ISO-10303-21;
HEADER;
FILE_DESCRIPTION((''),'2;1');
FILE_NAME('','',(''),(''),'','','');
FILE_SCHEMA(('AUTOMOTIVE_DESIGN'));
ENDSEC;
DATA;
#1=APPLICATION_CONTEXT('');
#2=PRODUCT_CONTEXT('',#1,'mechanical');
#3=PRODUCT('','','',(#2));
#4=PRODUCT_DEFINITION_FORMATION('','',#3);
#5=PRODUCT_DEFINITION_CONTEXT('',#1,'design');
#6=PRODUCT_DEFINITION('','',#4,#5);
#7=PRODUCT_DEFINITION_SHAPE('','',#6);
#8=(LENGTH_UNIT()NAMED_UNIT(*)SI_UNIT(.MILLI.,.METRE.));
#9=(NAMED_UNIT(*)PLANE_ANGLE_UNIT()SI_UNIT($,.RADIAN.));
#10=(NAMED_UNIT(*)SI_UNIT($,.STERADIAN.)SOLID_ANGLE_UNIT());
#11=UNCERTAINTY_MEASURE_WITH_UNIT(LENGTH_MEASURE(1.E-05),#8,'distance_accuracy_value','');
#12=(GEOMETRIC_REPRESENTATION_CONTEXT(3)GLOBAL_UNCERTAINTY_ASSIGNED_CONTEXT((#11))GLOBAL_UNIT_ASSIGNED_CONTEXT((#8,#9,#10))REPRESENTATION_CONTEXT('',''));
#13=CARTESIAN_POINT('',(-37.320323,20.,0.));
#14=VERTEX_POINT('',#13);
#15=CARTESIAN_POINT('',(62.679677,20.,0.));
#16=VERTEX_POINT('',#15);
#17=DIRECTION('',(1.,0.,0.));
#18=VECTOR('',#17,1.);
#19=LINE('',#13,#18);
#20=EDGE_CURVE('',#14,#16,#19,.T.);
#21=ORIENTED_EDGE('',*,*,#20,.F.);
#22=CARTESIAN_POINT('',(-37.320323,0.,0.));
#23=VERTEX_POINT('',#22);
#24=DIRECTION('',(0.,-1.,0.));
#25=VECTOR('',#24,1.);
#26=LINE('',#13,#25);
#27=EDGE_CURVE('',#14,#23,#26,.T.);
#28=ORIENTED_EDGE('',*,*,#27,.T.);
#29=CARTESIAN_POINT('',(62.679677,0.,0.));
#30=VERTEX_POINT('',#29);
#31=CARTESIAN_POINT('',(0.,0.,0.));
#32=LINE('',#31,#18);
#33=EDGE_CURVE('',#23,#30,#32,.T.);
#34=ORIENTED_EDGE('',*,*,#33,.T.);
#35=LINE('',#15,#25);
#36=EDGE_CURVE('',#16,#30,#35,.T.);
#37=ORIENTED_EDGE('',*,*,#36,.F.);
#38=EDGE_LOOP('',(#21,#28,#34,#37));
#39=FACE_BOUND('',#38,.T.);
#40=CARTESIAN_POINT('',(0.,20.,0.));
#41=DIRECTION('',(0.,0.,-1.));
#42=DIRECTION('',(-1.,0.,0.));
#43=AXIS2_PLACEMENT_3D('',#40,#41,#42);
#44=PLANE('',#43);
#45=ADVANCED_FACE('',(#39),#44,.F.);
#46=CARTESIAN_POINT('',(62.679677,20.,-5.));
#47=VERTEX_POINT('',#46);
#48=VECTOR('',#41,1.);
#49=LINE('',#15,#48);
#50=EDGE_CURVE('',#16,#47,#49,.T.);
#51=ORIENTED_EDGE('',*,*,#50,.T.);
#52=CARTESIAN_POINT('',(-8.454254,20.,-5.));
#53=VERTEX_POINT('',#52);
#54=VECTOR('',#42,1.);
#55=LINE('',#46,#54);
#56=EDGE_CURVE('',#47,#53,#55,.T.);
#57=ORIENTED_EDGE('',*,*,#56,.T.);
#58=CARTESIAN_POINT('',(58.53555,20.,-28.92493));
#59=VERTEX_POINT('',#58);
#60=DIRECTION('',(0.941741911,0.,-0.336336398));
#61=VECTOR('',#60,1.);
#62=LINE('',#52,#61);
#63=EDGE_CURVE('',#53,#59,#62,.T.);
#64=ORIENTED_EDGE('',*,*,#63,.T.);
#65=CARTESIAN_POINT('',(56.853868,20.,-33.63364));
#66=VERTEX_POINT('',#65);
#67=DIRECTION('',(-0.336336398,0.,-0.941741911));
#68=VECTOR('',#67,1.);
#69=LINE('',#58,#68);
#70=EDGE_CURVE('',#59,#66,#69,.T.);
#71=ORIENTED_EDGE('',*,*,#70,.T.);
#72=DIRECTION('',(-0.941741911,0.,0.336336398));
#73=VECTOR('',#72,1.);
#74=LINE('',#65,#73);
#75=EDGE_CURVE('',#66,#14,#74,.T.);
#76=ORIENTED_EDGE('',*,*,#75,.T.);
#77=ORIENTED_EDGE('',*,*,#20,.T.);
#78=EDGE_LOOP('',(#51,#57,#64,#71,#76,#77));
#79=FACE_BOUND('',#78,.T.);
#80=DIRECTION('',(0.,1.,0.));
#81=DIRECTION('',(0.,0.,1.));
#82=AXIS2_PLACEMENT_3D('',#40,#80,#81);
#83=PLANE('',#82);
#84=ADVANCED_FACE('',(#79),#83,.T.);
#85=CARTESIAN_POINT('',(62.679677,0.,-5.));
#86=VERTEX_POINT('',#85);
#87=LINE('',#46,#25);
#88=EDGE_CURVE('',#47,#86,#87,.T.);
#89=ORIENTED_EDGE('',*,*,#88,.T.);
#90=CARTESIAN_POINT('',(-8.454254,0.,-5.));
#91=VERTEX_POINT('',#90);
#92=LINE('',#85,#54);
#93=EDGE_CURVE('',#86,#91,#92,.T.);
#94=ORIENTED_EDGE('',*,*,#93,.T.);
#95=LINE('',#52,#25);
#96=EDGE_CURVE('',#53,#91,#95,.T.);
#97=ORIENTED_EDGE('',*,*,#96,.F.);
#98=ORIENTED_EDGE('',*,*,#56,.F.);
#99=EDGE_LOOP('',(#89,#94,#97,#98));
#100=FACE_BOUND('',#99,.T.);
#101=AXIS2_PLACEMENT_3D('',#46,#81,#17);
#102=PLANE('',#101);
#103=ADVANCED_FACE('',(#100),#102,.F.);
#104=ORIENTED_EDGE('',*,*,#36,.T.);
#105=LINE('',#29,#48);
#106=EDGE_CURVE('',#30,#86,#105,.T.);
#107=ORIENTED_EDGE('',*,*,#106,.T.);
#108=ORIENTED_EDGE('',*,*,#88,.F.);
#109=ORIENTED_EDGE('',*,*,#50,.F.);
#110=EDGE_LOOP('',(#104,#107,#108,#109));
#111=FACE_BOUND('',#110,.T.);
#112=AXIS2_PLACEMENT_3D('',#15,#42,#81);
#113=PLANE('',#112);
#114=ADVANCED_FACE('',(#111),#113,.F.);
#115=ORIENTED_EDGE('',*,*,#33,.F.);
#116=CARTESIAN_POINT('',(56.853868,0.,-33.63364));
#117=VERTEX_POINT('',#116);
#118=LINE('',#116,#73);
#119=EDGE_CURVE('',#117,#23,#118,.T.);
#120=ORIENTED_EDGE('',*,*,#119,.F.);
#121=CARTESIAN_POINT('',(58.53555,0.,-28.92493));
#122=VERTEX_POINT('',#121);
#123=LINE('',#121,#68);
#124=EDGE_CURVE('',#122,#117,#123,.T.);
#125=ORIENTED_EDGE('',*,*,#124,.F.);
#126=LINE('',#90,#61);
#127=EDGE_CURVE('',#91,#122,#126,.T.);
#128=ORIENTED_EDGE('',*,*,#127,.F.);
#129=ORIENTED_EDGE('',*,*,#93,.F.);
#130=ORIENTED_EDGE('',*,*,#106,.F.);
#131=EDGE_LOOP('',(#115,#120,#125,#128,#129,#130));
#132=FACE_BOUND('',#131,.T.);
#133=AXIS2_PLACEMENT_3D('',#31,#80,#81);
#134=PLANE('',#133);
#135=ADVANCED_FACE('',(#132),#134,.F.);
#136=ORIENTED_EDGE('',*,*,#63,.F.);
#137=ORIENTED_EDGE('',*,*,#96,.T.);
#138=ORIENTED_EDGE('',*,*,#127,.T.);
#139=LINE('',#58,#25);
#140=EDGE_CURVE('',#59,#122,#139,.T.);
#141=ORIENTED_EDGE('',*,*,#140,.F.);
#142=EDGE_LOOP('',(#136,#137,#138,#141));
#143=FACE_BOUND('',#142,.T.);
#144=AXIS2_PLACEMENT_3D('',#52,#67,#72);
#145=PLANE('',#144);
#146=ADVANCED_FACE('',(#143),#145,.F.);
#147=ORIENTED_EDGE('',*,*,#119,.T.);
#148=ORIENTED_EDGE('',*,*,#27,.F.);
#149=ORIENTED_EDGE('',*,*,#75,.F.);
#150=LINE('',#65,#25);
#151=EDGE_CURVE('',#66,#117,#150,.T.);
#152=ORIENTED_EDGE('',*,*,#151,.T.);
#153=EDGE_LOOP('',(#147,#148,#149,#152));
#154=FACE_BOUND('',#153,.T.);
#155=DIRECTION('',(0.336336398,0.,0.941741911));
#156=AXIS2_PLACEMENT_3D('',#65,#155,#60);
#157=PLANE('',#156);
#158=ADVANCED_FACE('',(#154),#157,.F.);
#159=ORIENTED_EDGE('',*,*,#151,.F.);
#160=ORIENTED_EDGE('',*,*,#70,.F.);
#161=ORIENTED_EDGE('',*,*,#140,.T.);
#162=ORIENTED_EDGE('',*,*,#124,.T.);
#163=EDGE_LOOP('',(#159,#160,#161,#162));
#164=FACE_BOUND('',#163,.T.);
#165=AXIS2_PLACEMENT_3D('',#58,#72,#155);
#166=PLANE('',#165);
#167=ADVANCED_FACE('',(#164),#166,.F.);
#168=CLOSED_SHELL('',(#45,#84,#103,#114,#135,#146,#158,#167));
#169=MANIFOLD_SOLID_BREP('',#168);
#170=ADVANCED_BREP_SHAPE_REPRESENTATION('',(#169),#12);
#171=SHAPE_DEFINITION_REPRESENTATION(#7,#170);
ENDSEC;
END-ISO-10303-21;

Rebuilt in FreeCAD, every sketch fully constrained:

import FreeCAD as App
import Part
import Sketcher

V = App.Vector

doc = App.newDocument("Part")
body = doc.addObject("PartDesign::Body", "Body")

# Sketch on XZ plane
sketch1 = body.newObject("Sketcher::SketchObject", "Sketch")
sketch1.AttachmentSupport = (doc.getObject("XZ_Plane"), [""])
sketch1.MapMode = "FlatFace"
sketch1.addGeometry([
    Part.LineSegment(V(63, 0, 0), V(63, -5, 0)),  # 0
    Part.LineSegment(V(63, -5, 0), V(-8, -5, 0)),  # 1
    Part.LineSegment(V(-8, -5, 0), V(59, -29, 0)),  # 2
    Part.LineSegment(V(59, -29, 0), V(57, -34, 0)),  # 3
    Part.LineSegment(V(57, -34, 0), V(-37, 0, 0)),  # 4
    Part.LineSegment(V(-37, 0, 0), V(63, 0, 0)),  # 5
], False)
sketch1.addConstraint([
    Sketcher.Constraint("Coincident", 0, 2, 1, 1),
    Sketcher.Constraint("Coincident", 1, 2, 2, 1),
    Sketcher.Constraint("Coincident", 2, 2, 3, 1),
    Sketcher.Constraint("Coincident", 3, 2, 4, 1),
    Sketcher.Constraint("Coincident", 4, 2, 5, 1),
    Sketcher.Constraint("Coincident", 5, 2, 0, 1),
    Sketcher.Constraint("Vertical", 0),
    Sketcher.Constraint("Horizontal", 1),
    Sketcher.Constraint("Horizontal", 5),
    Sketcher.Constraint("PointOnObject", 4, 2, -1),
    Sketcher.Constraint("Perpendicular", 2, 3),
    Sketcher.Constraint("Perpendicular", 3, 4),
    Sketcher.Constraint("DistanceX", 5, 1, 5, 2, 100.0),
    Sketcher.Constraint("DistanceY", 0, 2, 0, 1, 5.0),
    Sketcher.Constraint("Distance", 3, 5.0),
    Sketcher.Constraint("Distance", 4, 100.0),
    Sketcher.Constraint("DistanceX", 1, 2, 1, 1, 71.133931),
    Sketcher.Constraint("DistanceX", -1, 1, 2, 2, 58.53555),
])
pad1 = body.newObject("PartDesign::Pad", "Pad")
pad1.Profile = sketch1
pad1.Length = 20
pad1.Reversed = True

doc.recompute()
